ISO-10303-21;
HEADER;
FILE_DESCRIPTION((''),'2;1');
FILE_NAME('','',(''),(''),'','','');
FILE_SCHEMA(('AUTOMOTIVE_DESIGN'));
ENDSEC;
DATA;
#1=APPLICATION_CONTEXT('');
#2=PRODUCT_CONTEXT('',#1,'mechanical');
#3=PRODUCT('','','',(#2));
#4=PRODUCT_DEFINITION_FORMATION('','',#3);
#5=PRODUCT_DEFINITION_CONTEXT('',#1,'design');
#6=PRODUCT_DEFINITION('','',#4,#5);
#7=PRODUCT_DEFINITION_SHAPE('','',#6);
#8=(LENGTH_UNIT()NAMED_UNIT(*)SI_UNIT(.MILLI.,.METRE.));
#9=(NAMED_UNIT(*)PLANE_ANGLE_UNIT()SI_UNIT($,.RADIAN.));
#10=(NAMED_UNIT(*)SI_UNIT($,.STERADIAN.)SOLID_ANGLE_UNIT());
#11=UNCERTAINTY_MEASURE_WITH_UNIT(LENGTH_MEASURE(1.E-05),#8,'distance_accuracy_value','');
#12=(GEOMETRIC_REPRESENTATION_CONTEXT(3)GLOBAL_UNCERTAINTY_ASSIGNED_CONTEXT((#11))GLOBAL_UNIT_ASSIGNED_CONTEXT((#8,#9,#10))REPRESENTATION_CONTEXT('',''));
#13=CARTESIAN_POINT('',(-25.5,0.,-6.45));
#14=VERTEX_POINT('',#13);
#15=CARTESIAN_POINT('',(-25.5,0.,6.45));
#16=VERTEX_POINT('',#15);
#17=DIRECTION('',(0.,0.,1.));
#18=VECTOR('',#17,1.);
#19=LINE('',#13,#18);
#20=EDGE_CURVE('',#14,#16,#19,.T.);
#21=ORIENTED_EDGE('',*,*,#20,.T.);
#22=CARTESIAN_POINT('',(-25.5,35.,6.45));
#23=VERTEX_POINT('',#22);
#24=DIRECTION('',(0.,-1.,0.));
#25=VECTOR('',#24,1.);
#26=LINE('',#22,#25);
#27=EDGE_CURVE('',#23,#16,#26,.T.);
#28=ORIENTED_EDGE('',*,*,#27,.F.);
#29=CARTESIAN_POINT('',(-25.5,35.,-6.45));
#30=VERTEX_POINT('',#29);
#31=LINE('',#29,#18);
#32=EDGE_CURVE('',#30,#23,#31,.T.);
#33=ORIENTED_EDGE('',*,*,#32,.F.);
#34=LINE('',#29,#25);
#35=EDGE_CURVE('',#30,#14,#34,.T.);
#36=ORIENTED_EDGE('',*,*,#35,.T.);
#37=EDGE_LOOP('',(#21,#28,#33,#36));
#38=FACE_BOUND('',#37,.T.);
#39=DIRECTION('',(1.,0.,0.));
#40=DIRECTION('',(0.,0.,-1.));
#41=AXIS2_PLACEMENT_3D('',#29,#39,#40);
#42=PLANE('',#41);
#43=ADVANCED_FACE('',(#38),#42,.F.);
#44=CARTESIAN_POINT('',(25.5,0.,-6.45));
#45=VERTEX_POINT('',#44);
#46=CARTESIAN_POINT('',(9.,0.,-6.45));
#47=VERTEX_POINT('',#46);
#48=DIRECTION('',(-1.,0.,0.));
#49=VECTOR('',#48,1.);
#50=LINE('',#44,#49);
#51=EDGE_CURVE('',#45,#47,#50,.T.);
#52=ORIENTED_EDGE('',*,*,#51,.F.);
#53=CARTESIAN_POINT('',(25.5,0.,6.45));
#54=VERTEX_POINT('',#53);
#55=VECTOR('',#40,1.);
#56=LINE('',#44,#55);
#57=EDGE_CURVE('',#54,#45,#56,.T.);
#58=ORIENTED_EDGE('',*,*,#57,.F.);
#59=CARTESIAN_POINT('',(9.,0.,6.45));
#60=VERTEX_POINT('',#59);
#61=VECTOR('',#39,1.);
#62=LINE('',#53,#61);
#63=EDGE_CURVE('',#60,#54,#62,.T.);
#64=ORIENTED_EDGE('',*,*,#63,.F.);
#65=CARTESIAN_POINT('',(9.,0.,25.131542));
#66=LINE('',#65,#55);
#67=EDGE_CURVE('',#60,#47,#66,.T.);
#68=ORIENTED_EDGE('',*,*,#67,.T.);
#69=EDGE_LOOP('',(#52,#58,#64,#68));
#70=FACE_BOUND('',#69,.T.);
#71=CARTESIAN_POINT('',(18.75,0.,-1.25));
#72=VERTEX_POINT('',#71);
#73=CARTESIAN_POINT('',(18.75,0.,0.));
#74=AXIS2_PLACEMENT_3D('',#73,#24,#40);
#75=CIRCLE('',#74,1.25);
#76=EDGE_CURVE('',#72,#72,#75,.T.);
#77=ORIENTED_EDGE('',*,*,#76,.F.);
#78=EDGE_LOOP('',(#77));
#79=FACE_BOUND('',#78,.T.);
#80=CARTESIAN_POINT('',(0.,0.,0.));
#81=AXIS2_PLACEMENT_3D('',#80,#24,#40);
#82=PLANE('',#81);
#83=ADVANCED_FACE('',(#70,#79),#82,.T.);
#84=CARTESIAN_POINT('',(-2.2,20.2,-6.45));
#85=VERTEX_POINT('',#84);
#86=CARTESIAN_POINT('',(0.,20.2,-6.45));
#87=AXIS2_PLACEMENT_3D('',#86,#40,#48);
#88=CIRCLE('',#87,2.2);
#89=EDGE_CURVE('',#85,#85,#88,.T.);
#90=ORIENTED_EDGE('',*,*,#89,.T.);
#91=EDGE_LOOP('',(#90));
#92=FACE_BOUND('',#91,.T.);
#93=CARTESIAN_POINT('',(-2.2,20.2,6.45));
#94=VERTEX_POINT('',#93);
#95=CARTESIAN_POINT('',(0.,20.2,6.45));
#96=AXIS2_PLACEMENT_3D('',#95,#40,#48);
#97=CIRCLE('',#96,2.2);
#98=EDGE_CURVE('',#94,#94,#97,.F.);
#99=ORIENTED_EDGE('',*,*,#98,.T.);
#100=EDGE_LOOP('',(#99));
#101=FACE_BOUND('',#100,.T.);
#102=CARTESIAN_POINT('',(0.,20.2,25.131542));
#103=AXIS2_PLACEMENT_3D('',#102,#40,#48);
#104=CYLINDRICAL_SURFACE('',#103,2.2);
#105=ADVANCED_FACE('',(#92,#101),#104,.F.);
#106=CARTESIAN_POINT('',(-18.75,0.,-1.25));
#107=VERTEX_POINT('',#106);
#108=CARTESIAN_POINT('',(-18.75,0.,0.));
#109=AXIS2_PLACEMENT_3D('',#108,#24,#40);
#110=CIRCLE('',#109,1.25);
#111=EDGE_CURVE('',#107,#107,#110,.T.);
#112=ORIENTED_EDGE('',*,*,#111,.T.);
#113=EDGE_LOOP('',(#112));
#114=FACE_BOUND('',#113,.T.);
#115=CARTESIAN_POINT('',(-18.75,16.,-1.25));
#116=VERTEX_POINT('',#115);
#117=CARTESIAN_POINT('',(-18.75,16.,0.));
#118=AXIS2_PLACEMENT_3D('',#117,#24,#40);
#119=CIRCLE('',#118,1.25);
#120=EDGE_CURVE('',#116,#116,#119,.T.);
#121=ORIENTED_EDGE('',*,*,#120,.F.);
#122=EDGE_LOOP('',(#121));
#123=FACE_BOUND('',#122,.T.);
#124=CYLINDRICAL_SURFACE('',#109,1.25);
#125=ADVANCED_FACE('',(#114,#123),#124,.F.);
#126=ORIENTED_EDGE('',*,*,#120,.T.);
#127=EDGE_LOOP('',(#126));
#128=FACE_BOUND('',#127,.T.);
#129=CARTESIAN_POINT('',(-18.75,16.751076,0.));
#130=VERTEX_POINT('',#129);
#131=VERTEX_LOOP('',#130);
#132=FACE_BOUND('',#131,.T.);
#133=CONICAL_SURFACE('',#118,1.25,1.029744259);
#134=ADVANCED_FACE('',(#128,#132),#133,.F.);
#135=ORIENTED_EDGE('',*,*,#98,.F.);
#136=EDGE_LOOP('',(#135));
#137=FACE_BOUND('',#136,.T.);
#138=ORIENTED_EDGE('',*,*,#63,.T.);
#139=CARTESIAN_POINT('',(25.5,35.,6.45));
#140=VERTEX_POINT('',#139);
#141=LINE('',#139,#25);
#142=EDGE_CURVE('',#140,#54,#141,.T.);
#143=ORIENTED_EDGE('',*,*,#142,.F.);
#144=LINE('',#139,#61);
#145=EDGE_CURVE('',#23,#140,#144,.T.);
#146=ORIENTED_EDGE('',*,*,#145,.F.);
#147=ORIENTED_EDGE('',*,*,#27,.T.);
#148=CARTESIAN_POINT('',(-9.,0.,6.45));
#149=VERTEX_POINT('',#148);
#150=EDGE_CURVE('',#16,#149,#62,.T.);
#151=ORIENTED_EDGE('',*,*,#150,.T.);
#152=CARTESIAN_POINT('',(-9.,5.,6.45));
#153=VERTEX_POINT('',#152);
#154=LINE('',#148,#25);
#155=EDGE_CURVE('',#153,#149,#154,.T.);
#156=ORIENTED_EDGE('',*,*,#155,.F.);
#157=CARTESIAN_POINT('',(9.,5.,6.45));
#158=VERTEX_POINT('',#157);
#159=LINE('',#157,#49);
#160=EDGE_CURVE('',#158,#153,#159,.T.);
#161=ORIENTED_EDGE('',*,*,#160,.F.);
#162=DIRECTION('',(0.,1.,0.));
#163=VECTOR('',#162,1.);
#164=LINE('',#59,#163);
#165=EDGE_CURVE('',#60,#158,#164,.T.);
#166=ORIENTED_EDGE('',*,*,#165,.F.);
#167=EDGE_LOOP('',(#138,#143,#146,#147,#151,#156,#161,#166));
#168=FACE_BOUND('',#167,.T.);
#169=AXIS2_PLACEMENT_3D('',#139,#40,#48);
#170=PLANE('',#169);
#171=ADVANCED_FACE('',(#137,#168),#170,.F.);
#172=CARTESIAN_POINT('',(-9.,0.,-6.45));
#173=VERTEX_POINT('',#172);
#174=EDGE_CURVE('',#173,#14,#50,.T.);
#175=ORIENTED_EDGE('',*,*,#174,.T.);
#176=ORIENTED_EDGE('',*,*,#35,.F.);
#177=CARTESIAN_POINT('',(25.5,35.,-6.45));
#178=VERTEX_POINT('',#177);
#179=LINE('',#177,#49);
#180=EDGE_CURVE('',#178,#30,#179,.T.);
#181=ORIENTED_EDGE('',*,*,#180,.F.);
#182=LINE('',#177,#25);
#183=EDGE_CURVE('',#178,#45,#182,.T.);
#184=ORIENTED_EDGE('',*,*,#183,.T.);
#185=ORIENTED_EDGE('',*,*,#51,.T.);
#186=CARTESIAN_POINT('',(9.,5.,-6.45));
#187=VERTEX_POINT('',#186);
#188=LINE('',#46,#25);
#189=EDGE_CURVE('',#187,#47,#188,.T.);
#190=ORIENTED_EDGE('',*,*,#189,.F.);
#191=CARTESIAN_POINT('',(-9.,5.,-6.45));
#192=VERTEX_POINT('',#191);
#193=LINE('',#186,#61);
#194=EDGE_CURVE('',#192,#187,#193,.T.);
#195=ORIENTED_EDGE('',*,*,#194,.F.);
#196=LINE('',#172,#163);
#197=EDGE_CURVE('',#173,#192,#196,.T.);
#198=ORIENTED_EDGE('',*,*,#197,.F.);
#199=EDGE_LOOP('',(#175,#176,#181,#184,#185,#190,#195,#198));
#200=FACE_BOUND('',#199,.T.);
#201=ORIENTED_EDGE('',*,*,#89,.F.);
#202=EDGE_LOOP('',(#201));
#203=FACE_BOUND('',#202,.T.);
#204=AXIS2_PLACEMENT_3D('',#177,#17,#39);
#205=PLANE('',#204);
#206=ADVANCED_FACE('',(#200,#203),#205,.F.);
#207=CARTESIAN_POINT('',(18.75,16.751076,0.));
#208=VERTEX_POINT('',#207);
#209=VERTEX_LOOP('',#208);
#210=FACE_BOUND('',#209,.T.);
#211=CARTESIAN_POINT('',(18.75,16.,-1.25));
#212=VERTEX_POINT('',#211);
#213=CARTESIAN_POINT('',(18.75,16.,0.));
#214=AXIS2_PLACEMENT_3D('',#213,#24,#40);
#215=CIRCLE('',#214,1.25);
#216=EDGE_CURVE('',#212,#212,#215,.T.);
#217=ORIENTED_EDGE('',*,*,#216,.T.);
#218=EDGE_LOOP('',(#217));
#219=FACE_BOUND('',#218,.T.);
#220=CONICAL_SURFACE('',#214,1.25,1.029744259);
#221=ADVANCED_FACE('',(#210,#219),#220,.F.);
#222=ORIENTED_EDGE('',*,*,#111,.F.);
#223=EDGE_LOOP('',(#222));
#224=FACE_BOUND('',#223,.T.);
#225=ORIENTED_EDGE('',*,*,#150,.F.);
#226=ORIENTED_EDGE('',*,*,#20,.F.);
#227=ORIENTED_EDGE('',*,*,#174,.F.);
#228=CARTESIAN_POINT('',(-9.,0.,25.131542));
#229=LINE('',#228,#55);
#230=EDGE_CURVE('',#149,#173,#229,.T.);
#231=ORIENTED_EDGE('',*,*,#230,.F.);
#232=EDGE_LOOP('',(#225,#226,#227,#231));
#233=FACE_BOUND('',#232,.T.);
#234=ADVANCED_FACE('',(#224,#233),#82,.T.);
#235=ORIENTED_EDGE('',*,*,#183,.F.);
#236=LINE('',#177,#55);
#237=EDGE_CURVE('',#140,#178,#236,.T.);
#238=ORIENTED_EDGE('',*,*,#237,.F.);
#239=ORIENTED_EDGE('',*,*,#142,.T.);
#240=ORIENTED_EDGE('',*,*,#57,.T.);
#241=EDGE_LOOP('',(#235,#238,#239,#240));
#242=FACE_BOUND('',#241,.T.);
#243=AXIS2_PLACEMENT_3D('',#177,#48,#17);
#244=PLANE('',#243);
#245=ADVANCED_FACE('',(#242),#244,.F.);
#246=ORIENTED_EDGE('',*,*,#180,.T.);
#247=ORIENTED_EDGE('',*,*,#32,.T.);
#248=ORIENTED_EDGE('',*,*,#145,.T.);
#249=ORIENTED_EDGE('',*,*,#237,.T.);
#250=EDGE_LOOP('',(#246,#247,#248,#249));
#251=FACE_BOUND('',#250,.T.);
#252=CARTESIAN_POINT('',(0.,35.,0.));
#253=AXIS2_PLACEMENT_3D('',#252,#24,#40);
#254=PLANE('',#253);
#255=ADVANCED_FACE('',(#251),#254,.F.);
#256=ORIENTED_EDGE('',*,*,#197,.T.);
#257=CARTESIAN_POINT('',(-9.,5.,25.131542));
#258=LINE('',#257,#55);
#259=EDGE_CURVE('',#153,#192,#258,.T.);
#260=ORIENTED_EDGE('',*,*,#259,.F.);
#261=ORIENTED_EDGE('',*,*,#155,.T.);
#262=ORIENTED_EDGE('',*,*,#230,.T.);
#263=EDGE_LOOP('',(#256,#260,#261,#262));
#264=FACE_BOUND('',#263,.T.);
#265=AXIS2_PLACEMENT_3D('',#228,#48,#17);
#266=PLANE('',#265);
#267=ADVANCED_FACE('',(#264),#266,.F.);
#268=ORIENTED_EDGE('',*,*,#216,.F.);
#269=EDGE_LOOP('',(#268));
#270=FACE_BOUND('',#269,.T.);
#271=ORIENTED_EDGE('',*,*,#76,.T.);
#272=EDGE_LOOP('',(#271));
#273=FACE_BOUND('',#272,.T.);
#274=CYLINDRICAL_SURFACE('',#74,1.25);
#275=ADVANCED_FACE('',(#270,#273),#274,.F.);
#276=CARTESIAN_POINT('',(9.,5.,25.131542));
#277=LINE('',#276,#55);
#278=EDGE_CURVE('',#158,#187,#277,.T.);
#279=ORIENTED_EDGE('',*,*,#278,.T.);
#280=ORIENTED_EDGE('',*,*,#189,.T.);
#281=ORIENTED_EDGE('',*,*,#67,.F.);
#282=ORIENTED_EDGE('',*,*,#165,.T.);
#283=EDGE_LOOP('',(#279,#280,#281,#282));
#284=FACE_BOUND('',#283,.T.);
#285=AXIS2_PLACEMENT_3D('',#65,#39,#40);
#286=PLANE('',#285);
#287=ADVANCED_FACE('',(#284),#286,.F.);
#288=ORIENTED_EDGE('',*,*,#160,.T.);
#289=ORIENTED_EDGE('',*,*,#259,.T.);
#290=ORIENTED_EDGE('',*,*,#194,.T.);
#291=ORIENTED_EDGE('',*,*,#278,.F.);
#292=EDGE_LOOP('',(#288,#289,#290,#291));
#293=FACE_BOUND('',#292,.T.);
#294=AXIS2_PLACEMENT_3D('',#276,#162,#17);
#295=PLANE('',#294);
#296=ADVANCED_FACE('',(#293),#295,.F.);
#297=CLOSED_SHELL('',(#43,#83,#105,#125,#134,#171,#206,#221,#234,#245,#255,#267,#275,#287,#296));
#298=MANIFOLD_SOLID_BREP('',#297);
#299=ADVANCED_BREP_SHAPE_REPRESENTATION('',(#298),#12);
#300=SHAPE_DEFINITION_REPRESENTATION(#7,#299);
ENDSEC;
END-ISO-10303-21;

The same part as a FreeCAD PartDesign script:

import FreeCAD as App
import Part
import Sketcher
from FreeCAD import Vector
Q = App.Units.Quantity


def add_polygon(sketch, points):
    """Adds a closed chain of lines whose ends are joined by coincident constraints."""
    first, n = sketch.GeometryCount, len(points)
    for a, b in zip(points, points[1:] + points[:1]):
        sketch.addGeometry(Part.LineSegment(App.Vector(*a, 0), App.Vector(*b, 0)), False)
    for i in range(n):
        sketch.addConstraint(Sketcher.Constraint("Coincident", first + i, 2, first + (i + 1) % n, 1))

doc = App.newDocument("Part")
body = doc.addObject("PartDesign::Body", "Body")

sketch1 = body.newObject("Sketcher::SketchObject", "Sketch")
sketch1.AttachmentSupport = (doc.getObject("XZ_Plane"), [""])
sketch1.MapMode = "FlatFace"
add_polygon(sketch1, [(-26, -6), (-26, 6), (26, 6), (26, -6)])
sketch1.addConstraint([
    Sketcher.Constraint("Vertical", 0),
    Sketcher.Constraint("Horizontal", 1),
    Sketcher.Constraint("Vertical", 2),
    Sketcher.Constraint("Horizontal", 3),
    Sketcher.Constraint("Symmetric", 0, 2, 2, 2, -1, 1),
    Sketcher.Constraint("DistanceX", 1, 1, 1, 2, Q("51 mm")),
    Sketcher.Constraint("DistanceY", 0, 1, 0, 2, Q("12.9 mm")),
])
pad1 = body.newObject("PartDesign::Pad", "Pad")
pad1.Profile = sketch1
pad1.Length = 35
pad1.Reversed = True

sketch2 = body.newObject("Sketcher::SketchObject", "Sketch001")
sketch2.AttachmentSupport = (doc.getObject("XZ_Plane"), [""])
sketch2.MapMode = "FlatFace"
sketch2.addGeometry([
    Part.Circle(Vector(18.8, 0, 0), Vector(0, 0, 1), 1.2),
    Part.Circle(Vector(-18.8, 0, 0), Vector(0, 0, 1), 1.2),
], False)
sketch2.addConstraint([
    Sketcher.Constraint("Equal", 0, 1),
    Sketcher.Constraint("Symmetric", 0, 3, 1, 3, -1, 1),
    Sketcher.Constraint("PointOnObject", 0, 3, -1),
    Sketcher.Constraint("Diameter", 0, Q("2.5 mm")),
    Sketcher.Constraint("DistanceX", 1, 3, 0, 3, Q("37.5 mm")),
])
doc.recompute()
hole = body.newObject("PartDesign::Hole", "Hole")
hole.Profile = sketch2
hole.ThreadType = "None"
hole.Diameter = 2.5
hole.DepthType = "Dimension"
hole.Depth = 16
hole.DrillPoint = "Angled"
hole.DrillPointAngle = 118

sketch3 = body.newObject("Sketcher::SketchObject", "Sketch002")
sketch3.AttachmentSupport = (doc.getObject("XY_Plane"), [""])
sketch3.MapMode = "FlatFace"
sketch3.AttachmentOffset = App.Placement(Vector(0, 0, -6.45), App.Rotation())
sketch3.addGeometry(Part.Circle(Vector(0, 20.2, 0), Vector(0, 0, 1), 2.2), False)
add_polygon(sketch3, [(9, 5), (9, 0), (-9, 0), (-9, 5)])
sketch3.addConstraint([
    Sketcher.Constraint("Vertical", 1),
    Sketcher.Constraint("Horizontal", 2),
    Sketcher.Constraint("Vertical", 3),
    Sketcher.Constraint("Horizontal", 4),
    Sketcher.Constraint("Symmetric", 1, 2, 2, 2, -1, 1),
    Sketcher.Constraint("PointOnObject", 0, 3, -2),
    Sketcher.Constraint("Diameter", 0, Q("4.4 mm")),
    Sketcher.Constraint("DistanceX", 2, 2, 2, 1, Q("18 mm")),
    Sketcher.Constraint("DistanceY", 1, 2, 1, 1, Q("5 mm")),
    Sketcher.Constraint("DistanceY", -1, 1, 0, 3, Q("20.2 mm")),
])
pocket1 = body.newObject("PartDesign::Pocket", "Pocket")
pocket1.Profile = sketch3
pocket1.Length = 12.9
pocket1.Reversed = True

doc.recompute()
